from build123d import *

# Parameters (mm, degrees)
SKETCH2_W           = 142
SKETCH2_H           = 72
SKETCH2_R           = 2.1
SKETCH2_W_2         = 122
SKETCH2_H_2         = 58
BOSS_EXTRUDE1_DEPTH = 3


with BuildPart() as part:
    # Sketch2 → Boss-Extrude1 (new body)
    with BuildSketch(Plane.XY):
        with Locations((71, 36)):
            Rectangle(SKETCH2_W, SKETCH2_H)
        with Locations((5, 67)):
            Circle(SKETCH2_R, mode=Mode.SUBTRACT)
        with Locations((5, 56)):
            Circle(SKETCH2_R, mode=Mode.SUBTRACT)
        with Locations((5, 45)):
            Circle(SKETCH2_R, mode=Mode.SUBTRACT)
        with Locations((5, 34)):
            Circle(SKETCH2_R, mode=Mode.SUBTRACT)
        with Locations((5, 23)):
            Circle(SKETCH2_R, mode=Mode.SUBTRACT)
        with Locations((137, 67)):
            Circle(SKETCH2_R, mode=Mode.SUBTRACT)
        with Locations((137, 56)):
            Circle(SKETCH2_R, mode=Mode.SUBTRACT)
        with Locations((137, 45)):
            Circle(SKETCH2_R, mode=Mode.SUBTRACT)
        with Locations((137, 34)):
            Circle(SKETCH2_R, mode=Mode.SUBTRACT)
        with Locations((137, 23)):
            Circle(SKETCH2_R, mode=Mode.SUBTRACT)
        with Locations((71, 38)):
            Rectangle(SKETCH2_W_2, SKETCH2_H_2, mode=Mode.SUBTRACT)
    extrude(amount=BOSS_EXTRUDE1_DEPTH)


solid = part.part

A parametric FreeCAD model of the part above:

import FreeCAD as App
import Part
import Sketcher

V = App.Vector
Q = App.Units.Quantity

doc = App.newDocument("Part")
body = doc.addObject("PartDesign::Body", "Body")

sketch1 = body.newObject("Sketcher::SketchObject", "Sketch")
sketch1.AttachmentSupport = (doc.getObject("XY_Plane"), [""])
sketch1.MapMode = "FlatFace"
sketch1.addGeometry([
    Part.LineSegment(V(0, 72, 0), V(0, 0, 0)),
    Part.LineSegment(V(0, 0, 0), V(142, 0, 0)),
    Part.LineSegment(V(142, 0, 0), V(142, 72, 0)),
    Part.LineSegment(V(142, 72, 0), V(0, 72, 0)),
    Part.Circle(V(5, 23, 0), V(0, 0, 1), 2.1),
    Part.Circle(V(5, 34, 0), V(0, 0, 1), 2.1),
    Part.Circle(V(137, 23, 0), V(0, 0, 1), 2.1),
    Part.LineSegment(V(132, 9, 0), V(10, 9, 0)),
    Part.LineSegment(V(10, 9, 0), V(10, 67, 0)),
    Part.LineSegment(V(10, 67, 0), V(132, 67, 0)),
    Part.LineSegment(V(132, 67, 0), V(132, 9, 0)),
    Part.Circle(V(137, 34, 0), V(0, 0, 1), 2.1),
    Part.Circle(V(5, 45, 0), V(0, 0, 1), 2.1),
    Part.Circle(V(5, 56, 0), V(0, 0, 1), 2.1),
    Part.Circle(V(5, 67, 0), V(0, 0, 1), 2.1),
    Part.Circle(V(137, 45, 0), V(0, 0, 1), 2.1),
    Part.Circle(V(137, 56, 0), V(0, 0, 1), 2.1),
    Part.Circle(V(137, 67, 0), V(0, 0, 1), 2.1),
], False)
sketch1.addConstraint([
    Sketcher.Constraint("Coincident", 0, 2, 1, 1),
    Sketcher.Constraint("Coincident", 1, 2, 2, 1),
    Sketcher.Constraint("Coincident", 2, 2, 3, 1),
    Sketcher.Constraint("Coincident", 3, 2, 0, 1),
    Sketcher.Constraint("Coincident", 7, 2, 8, 1),
    Sketcher.Constraint("Coincident", 8, 2, 9, 1),
    Sketcher.Constraint("Coincident", 9, 2, 10, 1),
    Sketcher.Constraint("Coincident", 10, 2, 7, 1),
    Sketcher.Constraint("Vertical", 0),
    Sketcher.Constraint("Horizontal", 1),
    Sketcher.Constraint("Vertical", 2),
    Sketcher.Constraint("Horizontal", 3),
    Sketcher.Constraint("Horizontal", 7),
    Sketcher.Constraint("Vertical", 8),
    Sketcher.Constraint("Horizontal", 9),
    Sketcher.Constraint("Vertical", 10),
    Sketcher.Constraint("Coincident", 0, 2, -1, 1),
    Sketcher.Constraint("Equal", 4, 5),
    Sketcher.Constraint("Equal", 5, 6),
    Sketcher.Constraint("Equal", 6, 11),
    Sketcher.Constraint("Equal", 11, 12),
    Sketcher.Constraint("Equal", 12, 13),
    Sketcher.Constraint("Equal", 13, 14),
    Sketcher.Constraint("Equal", 14, 15),
    Sketcher.Constraint("Equal", 15, 16),
    Sketcher.Constraint("Equal", 16, 17),
    Sketcher.Constraint("Horizontal", 4, 3, 6, 3),
    Sketcher.Constraint("Horizontal", 5, 3, 11, 3),
    Sketcher.Constraint("Horizontal", 12, 3, 15, 3),
    Sketcher.Constraint("Horizontal", 13, 3, 16, 3),
    Sketcher.Constraint("Horizontal", 14, 3, 17, 3),
    Sketcher.Constraint("Horizontal", 17, 3, 8, 2),
    Sketcher.Constraint("Vertical", 4, 3, 5, 3),
    Sketcher.Constraint("Vertical", 6, 3, 11, 3),
    Sketcher.Constraint("Vertical", 5, 3, 12, 3),
    Sketcher.Constraint("Vertical", 12, 3, 13, 3),
    Sketcher.Constraint("Vertical", 13, 3, 14, 3),
    Sketcher.Constraint("Vertical", 11, 3, 15, 3),
    Sketcher.Constraint("Vertical", 15, 3, 16, 3),
    Sketcher.Constraint("Vertical", 16, 3, 17, 3),
    Sketcher.Constraint("Diameter", 4, Q("4.2 mm")),
    Sketcher.Constraint("DistanceX", 1, 1, 1, 2, Q("142 mm")),
    Sketcher.Constraint("DistanceX", 7, 2, 7, 1, Q("122 mm")),
    Sketcher.Constraint("DistanceY", 0, 2, 0, 1, Q("72 mm")),
    Sketcher.Constraint("DistanceY", 8, 1, 8, 2, Q("58 mm")),
    Sketcher.Constraint("DistanceX", -1, 1, 4, 3, Q("5 mm")),
    Sketcher.Constraint("DistanceY", -1, 1, 4, 3, Q("23 mm")),
    Sketcher.Constraint("DistanceY", -1, 1, 5, 3, Q("34 mm")),
    Sketcher.Constraint("DistanceX", -1, 1, 6, 3, Q("137 mm")),
    Sketcher.Constraint("DistanceY", -1, 1, 12, 3, Q("45 mm")),
    Sketcher.Constraint("DistanceY", -1, 1, 13, 3, Q("56 mm")),
    Sketcher.Constraint("DistanceY", -1, 1, 14, 3, Q("67 mm")),
    Sketcher.Constraint("DistanceX", -1, 1, 7, 2, Q("10 mm")),
])
pad1 = body.newObject("PartDesign::Pad", "Pad")
pad1.Profile = sketch1
pad1.Length = 3

doc.recompute()
